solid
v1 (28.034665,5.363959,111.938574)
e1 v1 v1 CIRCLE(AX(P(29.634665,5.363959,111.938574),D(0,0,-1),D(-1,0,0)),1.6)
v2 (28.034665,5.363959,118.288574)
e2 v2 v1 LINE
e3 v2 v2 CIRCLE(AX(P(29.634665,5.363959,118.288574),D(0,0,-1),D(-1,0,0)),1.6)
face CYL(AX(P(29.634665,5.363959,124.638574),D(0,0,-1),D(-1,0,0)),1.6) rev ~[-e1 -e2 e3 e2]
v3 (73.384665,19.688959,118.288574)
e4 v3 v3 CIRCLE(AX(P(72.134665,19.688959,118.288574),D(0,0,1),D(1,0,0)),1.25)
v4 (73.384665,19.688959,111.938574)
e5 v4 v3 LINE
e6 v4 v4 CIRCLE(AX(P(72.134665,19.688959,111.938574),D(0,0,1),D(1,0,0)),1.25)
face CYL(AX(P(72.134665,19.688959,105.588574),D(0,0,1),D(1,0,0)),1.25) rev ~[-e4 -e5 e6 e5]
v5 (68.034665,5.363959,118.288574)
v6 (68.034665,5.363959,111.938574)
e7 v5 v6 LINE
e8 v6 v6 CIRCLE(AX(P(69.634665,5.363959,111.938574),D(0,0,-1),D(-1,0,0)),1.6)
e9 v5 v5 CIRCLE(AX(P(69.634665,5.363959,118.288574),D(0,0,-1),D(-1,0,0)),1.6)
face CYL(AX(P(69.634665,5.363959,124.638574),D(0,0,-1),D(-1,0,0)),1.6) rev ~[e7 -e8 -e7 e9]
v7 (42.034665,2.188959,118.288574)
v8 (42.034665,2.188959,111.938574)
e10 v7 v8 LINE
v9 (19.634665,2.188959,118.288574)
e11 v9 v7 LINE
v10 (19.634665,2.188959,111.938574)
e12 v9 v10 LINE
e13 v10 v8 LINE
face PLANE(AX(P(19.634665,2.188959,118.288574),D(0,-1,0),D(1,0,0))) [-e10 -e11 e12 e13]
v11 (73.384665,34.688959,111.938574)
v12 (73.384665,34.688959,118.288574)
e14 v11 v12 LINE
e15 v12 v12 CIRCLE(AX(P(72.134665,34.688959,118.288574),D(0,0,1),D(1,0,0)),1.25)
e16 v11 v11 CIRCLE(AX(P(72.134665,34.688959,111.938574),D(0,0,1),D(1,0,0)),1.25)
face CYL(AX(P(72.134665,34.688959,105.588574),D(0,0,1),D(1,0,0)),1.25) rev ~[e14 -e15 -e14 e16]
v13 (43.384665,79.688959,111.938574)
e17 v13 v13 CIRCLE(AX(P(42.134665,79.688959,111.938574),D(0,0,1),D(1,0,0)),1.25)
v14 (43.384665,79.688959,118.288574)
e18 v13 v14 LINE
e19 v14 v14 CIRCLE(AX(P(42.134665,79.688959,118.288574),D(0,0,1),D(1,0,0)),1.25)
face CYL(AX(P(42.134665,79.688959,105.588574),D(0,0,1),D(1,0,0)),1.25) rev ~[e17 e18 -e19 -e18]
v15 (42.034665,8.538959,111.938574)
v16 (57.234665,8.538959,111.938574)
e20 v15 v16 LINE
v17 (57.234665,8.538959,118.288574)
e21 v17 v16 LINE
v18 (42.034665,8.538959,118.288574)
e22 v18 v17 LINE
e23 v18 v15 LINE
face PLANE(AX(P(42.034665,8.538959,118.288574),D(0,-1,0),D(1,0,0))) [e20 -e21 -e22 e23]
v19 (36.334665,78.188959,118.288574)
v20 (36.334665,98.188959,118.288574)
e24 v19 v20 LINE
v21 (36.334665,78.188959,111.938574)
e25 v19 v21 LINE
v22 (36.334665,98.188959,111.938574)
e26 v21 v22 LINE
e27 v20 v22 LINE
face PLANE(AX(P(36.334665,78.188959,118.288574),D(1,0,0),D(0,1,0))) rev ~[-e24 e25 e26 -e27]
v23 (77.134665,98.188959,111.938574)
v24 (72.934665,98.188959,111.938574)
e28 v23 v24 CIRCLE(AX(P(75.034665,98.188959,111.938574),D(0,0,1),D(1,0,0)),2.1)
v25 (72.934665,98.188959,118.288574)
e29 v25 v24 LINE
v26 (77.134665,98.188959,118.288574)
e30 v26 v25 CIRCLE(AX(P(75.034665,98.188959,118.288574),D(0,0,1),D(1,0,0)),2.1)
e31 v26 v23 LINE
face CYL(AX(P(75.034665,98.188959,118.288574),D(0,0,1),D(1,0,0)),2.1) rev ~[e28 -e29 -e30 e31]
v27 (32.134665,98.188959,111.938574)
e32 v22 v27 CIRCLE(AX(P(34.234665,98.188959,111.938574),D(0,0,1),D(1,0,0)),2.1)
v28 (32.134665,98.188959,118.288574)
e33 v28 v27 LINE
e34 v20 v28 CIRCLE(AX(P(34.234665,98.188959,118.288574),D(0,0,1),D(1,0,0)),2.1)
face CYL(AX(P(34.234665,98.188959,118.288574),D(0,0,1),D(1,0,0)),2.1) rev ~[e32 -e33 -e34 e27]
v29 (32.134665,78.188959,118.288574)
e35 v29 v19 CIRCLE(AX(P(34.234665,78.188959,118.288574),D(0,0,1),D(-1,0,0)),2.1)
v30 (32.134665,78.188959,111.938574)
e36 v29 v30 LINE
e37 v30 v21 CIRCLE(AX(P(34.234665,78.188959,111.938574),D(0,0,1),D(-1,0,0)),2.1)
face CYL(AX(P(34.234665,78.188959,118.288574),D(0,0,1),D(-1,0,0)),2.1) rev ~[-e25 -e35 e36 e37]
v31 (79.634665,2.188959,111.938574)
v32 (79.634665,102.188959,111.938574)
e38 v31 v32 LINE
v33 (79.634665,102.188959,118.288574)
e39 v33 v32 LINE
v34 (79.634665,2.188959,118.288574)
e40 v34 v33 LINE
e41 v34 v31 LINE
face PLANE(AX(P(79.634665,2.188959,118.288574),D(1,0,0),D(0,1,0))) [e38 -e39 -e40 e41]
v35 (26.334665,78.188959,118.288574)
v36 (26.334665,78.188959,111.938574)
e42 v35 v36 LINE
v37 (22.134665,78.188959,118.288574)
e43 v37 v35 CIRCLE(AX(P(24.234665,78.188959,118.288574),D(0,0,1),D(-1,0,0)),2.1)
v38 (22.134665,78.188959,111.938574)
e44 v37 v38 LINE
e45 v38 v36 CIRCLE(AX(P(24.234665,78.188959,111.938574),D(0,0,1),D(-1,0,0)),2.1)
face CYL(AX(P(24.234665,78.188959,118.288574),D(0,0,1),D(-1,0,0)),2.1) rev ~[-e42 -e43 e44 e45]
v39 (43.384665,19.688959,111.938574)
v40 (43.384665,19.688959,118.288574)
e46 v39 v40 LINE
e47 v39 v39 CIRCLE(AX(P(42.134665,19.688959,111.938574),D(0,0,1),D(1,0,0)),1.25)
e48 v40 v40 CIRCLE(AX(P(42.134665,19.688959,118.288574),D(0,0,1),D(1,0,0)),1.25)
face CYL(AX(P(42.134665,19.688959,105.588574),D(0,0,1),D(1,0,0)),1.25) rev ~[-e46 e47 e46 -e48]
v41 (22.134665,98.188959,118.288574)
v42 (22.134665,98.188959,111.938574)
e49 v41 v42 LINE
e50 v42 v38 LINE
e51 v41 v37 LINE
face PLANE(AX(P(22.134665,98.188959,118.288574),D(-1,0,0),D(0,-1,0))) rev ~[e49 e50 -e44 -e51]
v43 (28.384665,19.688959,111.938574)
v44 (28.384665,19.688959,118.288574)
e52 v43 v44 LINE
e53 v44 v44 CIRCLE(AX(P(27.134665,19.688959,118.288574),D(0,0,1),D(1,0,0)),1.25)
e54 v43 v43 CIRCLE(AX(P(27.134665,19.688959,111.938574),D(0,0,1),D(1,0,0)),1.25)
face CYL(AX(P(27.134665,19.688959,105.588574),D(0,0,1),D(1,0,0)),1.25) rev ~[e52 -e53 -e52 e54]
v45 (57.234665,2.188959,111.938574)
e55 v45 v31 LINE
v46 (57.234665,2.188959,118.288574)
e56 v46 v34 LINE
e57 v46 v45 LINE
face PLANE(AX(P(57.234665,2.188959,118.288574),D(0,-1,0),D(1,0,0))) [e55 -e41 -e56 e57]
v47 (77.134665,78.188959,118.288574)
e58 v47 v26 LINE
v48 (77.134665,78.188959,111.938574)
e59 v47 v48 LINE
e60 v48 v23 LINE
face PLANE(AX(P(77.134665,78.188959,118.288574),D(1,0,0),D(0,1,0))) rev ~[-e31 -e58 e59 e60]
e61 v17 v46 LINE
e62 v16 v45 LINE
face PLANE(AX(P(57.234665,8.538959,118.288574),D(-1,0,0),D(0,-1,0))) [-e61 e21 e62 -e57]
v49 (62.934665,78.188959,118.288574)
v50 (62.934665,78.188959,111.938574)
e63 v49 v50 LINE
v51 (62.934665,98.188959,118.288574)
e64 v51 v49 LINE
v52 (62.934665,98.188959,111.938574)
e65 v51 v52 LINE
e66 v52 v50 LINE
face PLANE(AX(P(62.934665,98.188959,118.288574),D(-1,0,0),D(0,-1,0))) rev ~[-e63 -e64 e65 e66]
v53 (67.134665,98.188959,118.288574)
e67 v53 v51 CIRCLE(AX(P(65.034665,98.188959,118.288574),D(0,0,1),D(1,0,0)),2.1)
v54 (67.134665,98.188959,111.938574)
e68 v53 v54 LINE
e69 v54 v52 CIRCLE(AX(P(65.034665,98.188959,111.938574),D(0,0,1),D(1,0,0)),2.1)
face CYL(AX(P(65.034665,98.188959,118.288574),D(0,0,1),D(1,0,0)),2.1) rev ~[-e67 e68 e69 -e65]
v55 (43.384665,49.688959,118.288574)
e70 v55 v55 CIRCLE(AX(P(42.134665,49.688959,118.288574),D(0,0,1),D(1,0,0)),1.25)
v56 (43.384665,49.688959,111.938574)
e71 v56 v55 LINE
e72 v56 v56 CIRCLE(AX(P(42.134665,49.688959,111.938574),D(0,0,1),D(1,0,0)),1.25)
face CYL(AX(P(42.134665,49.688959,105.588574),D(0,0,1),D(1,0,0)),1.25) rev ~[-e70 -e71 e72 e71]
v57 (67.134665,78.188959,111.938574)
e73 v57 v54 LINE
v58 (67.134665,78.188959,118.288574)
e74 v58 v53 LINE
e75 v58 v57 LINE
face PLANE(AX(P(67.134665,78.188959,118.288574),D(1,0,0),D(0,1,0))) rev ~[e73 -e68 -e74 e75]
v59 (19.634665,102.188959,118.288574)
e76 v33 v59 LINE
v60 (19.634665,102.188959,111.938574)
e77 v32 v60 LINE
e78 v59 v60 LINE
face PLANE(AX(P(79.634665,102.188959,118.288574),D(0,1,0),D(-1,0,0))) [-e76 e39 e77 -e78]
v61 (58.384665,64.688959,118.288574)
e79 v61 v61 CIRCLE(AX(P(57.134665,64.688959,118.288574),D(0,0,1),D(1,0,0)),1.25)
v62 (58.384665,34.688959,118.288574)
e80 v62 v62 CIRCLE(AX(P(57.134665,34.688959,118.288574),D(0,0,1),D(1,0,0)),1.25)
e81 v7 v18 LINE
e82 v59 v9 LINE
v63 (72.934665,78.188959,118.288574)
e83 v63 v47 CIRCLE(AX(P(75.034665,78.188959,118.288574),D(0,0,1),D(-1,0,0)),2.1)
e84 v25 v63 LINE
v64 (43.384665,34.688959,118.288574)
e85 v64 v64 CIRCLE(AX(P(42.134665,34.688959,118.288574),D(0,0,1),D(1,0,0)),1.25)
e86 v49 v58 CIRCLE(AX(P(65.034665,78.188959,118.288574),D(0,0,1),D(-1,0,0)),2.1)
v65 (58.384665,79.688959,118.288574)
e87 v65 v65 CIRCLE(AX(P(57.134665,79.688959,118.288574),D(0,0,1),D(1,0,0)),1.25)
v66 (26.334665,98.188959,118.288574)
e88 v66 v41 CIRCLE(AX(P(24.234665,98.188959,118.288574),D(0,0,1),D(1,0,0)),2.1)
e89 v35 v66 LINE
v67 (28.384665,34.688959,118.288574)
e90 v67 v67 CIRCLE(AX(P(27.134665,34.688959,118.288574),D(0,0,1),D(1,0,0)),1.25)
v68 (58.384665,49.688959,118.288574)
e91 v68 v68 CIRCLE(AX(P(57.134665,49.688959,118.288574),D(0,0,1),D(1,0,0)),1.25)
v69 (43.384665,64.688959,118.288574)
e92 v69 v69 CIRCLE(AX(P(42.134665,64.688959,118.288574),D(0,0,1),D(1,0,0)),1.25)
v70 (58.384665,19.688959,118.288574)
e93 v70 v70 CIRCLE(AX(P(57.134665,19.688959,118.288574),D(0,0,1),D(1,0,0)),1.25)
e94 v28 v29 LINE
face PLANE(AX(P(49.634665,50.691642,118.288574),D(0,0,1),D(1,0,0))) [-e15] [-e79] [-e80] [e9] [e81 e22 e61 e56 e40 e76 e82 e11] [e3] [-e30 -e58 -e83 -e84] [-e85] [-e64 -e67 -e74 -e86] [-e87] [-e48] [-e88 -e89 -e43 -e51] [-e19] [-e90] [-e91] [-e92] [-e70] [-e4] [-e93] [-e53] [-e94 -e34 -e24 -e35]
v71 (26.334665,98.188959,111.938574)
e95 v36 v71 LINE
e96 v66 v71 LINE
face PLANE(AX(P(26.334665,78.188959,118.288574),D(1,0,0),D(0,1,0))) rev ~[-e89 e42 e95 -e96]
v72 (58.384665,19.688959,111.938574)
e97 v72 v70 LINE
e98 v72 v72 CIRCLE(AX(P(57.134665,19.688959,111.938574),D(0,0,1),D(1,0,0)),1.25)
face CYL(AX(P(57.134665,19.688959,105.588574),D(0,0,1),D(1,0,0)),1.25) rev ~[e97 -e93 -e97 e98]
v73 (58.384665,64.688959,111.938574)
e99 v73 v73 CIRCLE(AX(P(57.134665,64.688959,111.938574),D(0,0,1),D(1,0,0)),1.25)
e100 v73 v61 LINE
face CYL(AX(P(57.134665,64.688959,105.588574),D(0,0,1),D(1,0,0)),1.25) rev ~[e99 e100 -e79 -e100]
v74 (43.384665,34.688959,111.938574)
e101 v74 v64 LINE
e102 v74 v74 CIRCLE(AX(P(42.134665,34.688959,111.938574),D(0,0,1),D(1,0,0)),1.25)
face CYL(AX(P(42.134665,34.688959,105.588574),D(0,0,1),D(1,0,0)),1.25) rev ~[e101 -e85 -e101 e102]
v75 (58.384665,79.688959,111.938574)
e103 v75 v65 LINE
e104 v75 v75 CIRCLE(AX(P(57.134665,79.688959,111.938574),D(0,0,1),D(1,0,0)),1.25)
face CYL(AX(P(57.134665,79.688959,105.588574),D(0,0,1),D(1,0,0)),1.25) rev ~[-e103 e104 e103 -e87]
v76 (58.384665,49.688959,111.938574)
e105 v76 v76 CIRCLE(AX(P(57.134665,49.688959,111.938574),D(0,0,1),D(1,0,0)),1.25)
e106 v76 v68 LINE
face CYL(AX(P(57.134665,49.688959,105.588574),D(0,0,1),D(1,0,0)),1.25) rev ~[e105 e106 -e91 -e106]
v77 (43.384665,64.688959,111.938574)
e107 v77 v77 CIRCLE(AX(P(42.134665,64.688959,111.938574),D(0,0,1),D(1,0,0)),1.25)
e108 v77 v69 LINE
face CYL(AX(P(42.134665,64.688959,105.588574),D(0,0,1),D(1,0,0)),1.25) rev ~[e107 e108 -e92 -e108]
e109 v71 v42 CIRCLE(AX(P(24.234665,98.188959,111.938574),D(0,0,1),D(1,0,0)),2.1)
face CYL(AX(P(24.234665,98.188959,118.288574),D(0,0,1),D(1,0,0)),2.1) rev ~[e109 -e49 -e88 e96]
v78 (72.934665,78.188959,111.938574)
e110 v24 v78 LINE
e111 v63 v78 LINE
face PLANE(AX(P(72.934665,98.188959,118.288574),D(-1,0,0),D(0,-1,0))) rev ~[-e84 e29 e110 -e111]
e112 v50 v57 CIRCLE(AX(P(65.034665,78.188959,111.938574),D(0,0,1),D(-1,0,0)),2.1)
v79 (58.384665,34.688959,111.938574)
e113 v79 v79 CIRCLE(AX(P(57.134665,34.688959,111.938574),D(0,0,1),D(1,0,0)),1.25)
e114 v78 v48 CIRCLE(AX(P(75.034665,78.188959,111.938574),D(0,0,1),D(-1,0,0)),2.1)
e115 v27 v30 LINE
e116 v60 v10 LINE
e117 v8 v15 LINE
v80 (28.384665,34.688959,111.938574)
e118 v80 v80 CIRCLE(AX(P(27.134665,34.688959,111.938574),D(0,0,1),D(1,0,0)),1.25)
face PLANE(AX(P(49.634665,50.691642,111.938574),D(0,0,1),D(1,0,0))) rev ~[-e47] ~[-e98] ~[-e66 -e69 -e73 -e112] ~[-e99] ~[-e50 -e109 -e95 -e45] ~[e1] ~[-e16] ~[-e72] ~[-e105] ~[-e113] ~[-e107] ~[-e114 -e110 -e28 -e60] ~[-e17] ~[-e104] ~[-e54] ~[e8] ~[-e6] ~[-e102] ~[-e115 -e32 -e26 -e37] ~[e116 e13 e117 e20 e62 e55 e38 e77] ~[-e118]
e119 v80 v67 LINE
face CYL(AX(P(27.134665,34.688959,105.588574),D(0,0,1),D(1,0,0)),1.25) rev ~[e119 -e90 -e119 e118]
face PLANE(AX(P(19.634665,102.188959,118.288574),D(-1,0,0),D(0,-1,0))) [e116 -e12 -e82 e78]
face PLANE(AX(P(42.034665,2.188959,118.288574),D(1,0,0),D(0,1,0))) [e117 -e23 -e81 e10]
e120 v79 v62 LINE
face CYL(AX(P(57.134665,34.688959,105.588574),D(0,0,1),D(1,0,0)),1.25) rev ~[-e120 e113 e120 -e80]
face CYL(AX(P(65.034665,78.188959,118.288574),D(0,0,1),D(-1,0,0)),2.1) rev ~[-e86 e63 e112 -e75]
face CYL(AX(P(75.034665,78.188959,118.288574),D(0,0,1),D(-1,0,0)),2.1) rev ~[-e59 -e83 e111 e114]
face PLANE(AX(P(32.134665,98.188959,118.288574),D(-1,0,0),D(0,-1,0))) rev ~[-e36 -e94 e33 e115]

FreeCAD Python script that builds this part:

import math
import FreeCAD as App
import Part
import Sketcher
Q = App.Units.Quantity


def add_polygon(sketch, points):
    """Adds a closed chain of lines whose ends are joined by coincident constraints."""
    first, n = sketch.GeometryCount, len(points)
    for a, b in zip(points, points[1:] + points[:1]):
        sketch.addGeometry(Part.LineSegment(App.Vector(*a, 0), App.Vector(*b, 0)), False)
    for i in range(n):
        sketch.addConstraint(Sketcher.Constraint("Coincident", first + i, 2, first + (i + 1) % n, 1))

doc = App.newDocument("Part")
body = doc.addObject("PartDesign::Body", "Body")

sketch1 = doc.addObject("Sketcher::SketchObject", "Sketch")
body.addObject(sketch1)
sketch1.AttachmentSupport = (doc.XY_Plane, [""])
sketch1.MapMode = "FlatFace"
sketch1.AttachmentOffset = App.Placement(App.Vector(0, 0, 118.288574), App.Rotation())
add_polygon(sketch1, [(19.634665, 102.188959), (19.634665, 2.188959), (42.034665, 2.188959), (42.034665, 8.538959), (57.234665, 8.538959), (57.234665, 2.188959), (79.634665, 2.188959), (79.634665, 102.188959)])
sketch1.addConstraint(Sketcher.Constraint("Vertical", 0))
sketch1.addConstraint(Sketcher.Constraint("Horizontal", 1))
sketch1.addConstraint(Sketcher.Constraint("Vertical", 2))
sketch1.addConstraint(Sketcher.Constraint("Horizontal", 3))
sketch1.addConstraint(Sketcher.Constraint("Vertical", 4))
sketch1.addConstraint(Sketcher.Constraint("Horizontal", 5))
sketch1.addConstraint(Sketcher.Constraint("Vertical", 6))
sketch1.addConstraint(Sketcher.Constraint("Horizontal", 7))
sketch1.addConstraint(Sketcher.Constraint("Horizontal", 1, 2, 4, 2))
sketch1.addConstraint(Sketcher.Constraint("Equal", 1, 5))
sketch1.addConstraint(Sketcher.Constraint("DistanceX", 7, 2, 7, 1, Q("60 mm")))
sketch1.addConstraint(Sketcher.Constraint("DistanceY", 0, 2, 0, 1, Q("100 mm")))
sketch1.addConstraint(Sketcher.Constraint("DistanceX", 1, 1, 1, 2, Q("22.4 mm")))
sketch1.addConstraint(Sketcher.Constraint("DistanceY", 2, 1, 2, 2, Q("6.35 mm")))
sketch1.addConstraint(Sketcher.Constraint("DistanceY", -1, 1, 0, 2, Q("2.188959 mm")))
sketch1.addConstraint(Sketcher.Constraint("DistanceX", -1, 1, 0, 2, Q("19.634665 mm")))
pad1 = doc.addObject("PartDesign::Pad", "Pad")
body.addObject(pad1)
pad1.Profile = sketch1
pad1.Length = 6.35
pad1.Reversed = True

sketch2 = doc.addObject("Sketcher::SketchObject", "Sketch001")
body.addObject(sketch2)
sketch2.AttachmentSupport = (doc.XY_Plane, [""])
sketch2.MapMode = "FlatFace"
sketch2.AttachmentOffset = App.Placement(App.Vector(0, 0, 111.938574), App.Rotation())
sketch2.addGeometry(Part.Circle(App.Vector(27.134665, 19.688959, 0), App.Vector(0, 0, 1), 1.25), False)
sketch2.addConstraint(Sketcher.Constraint("Diameter", 0, Q("2.5 mm")))
sketch2.addConstraint(Sketcher.Constraint("DistanceY", -1, 1, 0, 3, Q("19.688959 mm")))
sketch2.addConstraint(Sketcher.Constraint("DistanceX", -1, 1, 0, 3, Q("27.134665 mm")))
doc.recompute()
hole = doc.addObject("PartDesign::Hole", "Hole")
body.addObject(hole)
hole.Profile = sketch2
hole.ThreadType = "None"
hole.Diameter = 2.5
hole.DepthType = "Dimension"
hole.Depth = 6.35
hole.DrillPoint = "Flat"
hole.Reversed = True

sketch3 = doc.addObject("Sketcher::SketchObject", "Sketch002")
body.addObject(sketch3)
sketch3.AttachmentSupport = (doc.XY_Plane, [""])
sketch3.MapMode = "FlatFace"
sketch3.AttachmentOffset = App.Placement(App.Vector(0, 0, 118.288574), App.Rotation())
sketch3.addGeometry(Part.Circle(App.Vector(29.634665, 5.363959, 0), App.Vector(0, 0, 1), 1.6), False)
sketch3.addConstraint(Sketcher.Constraint("Diameter", 0, Q("3.2 mm")))
sketch3.addConstraint(Sketcher.Constraint("DistanceY", -1, 1, 0, 3, Q("5.363959 mm")))
sketch3.addConstraint(Sketcher.Constraint("DistanceX", -1, 1, 0, 3, Q("29.634665 mm")))
doc.recompute()
hole2 = doc.addObject("PartDesign::Hole", "Hole001")
body.addObject(hole2)
hole2.Profile = sketch3
hole2.ThreadType = "None"
hole2.Diameter = 3.2
hole2.DepthType = "Dimension"
hole2.Depth = 6.35
hole2.DrillPoint = "Flat"

sketch4 = doc.addObject("Sketcher::SketchObject", "Sketch003")
body.addObject(sketch4)
sketch4.AttachmentSupport = (doc.XY_Plane, [""])
sketch4.MapMode = "FlatFace"
sketch4.AttachmentOffset = App.Placement(App.Vector(0, 0, 111.938574), App.Rotation())
sketch4.addGeometry(Part.Circle(App.Vector(57.134665, 19.688959, 0), App.Vector(0, 0, 1), 1.25), False)
sketch4.addConstraint(Sketcher.Constraint("Diameter", 0, Q("2.5 mm")))
sketch4.addConstraint(Sketcher.Constraint("DistanceY", -1, 1, 0, 3, Q("19.688959 mm")))
sketch4.addConstraint(Sketcher.Constraint("DistanceX", -1, 1, 0, 3, Q("57.134665 mm")))
doc.recompute()
hole3 = doc.addObject("PartDesign::Hole", "Hole002")
body.addObject(hole3)
hole3.Profile = sketch4
hole3.ThreadType = "None"
hole3.Diameter = 2.5
hole3.DepthType = "Dimension"
hole3.Depth = 6.35
hole3.DrillPoint = "Flat"
hole3.Reversed = True

sketch5 = doc.addObject("Sketcher::SketchObject", "Sketch004")
body.addObject(sketch5)
sketch5.AttachmentSupport = (doc.XY_Plane, [""])
sketch5.MapMode = "FlatFace"
sketch5.AttachmentOffset = App.Placement(App.Vector(0, 0, 111.938574), App.Rotation())
sketch5.addGeometry(Part.Circle(App.Vector(42.134665, 34.688959, 0), App.Vector(0, 0, 1), 1.25), False)
sketch5.addConstraint(Sketcher.Constraint("Diameter", 0, Q("2.5 mm")))
sketch5.addConstraint(Sketcher.Constraint("DistanceY", -1, 1, 0, 3, Q("34.688959 mm")))
sketch5.addConstraint(Sketcher.Constraint("DistanceX", -1, 1, 0, 3, Q("42.134665 mm")))
doc.recompute()
hole4 = doc.addObject("PartDesign::Hole", "Hole003")
body.addObject(hole4)
hole4.Profile = sketch5
hole4.ThreadType = "None"
hole4.Diameter = 2.5
hole4.DepthType = "Dimension"
hole4.Depth = 6.35
hole4.DrillPoint = "Flat"
hole4.Reversed = True

sketch6 = doc.addObject("Sketcher::SketchObject", "Sketch005")
body.addObject(sketch6)
sketch6.AttachmentSupport = (doc.XY_Plane, [""])
sketch6.MapMode = "FlatFace"
sketch6.AttachmentOffset = App.Placement(App.Vector(0, 0, 111.938574), App.Rotation())
sketch6.addGeometry(Part.Circle(App.Vector(42.134665, 64.688959, 0), App.Vector(0, 0, 1), 1.25), False)
sketch6.addConstraint(Sketcher.Constraint("Diameter", 0, Q("2.5 mm")))
sketch6.addConstraint(Sketcher.Constraint("DistanceY", -1, 1, 0, 3, Q("64.688959 mm")))
sketch6.addConstraint(Sketcher.Constraint("DistanceX", -1, 1, 0, 3, Q("42.134665 mm")))
doc.recompute()
hole5 = doc.addObject("PartDesign::Hole", "Hole004")
body.addObject(hole5)
hole5.Profile = sketch6
hole5.ThreadType = "None"
hole5.Diameter = 2.5
hole5.DepthType = "Dimension"
hole5.Depth = 6.35
hole5.DrillPoint = "Flat"
hole5.Reversed = True

sketch7 = doc.addObject("Sketcher::SketchObject", "Sketch006")
body.addObject(sketch7)
sketch7.AttachmentSupport = (doc.XY_Plane, [""])
sketch7.MapMode = "FlatFace"
sketch7.AttachmentOffset = App.Placement(App.Vector(0, 0, 111.938574), App.Rotation())
sketch7.addGeometry(Part.Circle(App.Vector(57.134665, 64.688959, 0), App.Vector(0, 0, 1), 1.25), False)
sketch7.addConstraint(Sketcher.Constraint("Diameter", 0, Q("2.5 mm")))
sketch7.addConstraint(Sketcher.Constraint("DistanceY", -1, 1, 0, 3, Q("64.688959 mm")))
sketch7.addConstraint(Sketcher.Constraint("DistanceX", -1, 1, 0, 3, Q("57.134665 mm")))
doc.recompute()
hole6 = doc.addObject("PartDesign::Hole", "Hole005")
body.addObject(hole6)
hole6.Profile = sketch7
hole6.ThreadType = "None"
hole6.Diameter = 2.5
hole6.DepthType = "Dimension"
hole6.Depth = 6.35
hole6.DrillPoint = "Flat"
hole6.Reversed = True

sketch8 = doc.addObject("Sketcher::SketchObject", "Sketch007")
body.addObject(sketch8)
sketch8.AttachmentSupport = (doc.XY_Plane, [""])
sketch8.MapMode = "FlatFace"
sketch8.AttachmentOffset = App.Placement(App.Vector(0, 0, 111.938574), App.Rotation())
sketch8.addGeometry(Part.Circle(App.Vector(27.134665, 34.688959, 0), App.Vector(0, 0, 1), 1.25), False)
sketch8.addConstraint(Sketcher.Constraint("Diameter", 0, Q("2.5 mm")))
sketch8.addConstraint(Sketcher.Constraint("DistanceY", -1, 1, 0, 3, Q("34.688959 mm")))
sketch8.addConstraint(Sketcher.Constraint("DistanceX", -1, 1, 0, 3, Q("27.134665 mm")))
doc.recompute()
hole7 = doc.addObject("PartDesign::Hole", "Hole006")
body.addObject(hole7)
hole7.Profile = sketch8
hole7.ThreadType = "None"
hole7.Diameter = 2.5
hole7.DepthType = "Dimension"
hole7.Depth = 6.35
hole7.DrillPoint = "Flat"
hole7.Reversed = True

sketch9 = doc.addObject("Sketcher::SketchObject", "Sketch008")
body.addObject(sketch9)
sketch9.AttachmentSupport = (doc.XY_Plane, [""])
sketch9.MapMode = "FlatFace"
sketch9.AttachmentOffset = App.Placement(App.Vector(0, 0, 111.938574), App.Rotation())
sketch9.addGeometry(Part.Circle(App.Vector(72.134665, 19.688959, 0), App.Vector(0, 0, 1), 1.25), False)
sketch9.addConstraint(Sketcher.Constraint("Diameter", 0, Q("2.5 mm")))
sketch9.addConstraint(Sketcher.Constraint("DistanceY", -1, 1, 0, 3, Q("19.688959 mm")))
sketch9.addConstraint(Sketcher.Constraint("DistanceX", -1, 1, 0, 3, Q("72.134665 mm")))
doc.recompute()
hole8 = doc.addObject("PartDesign::Hole", "Hole007")
body.addObject(hole8)
hole8.Profile = sketch9
hole8.ThreadType = "None"
hole8.Diameter = 2.5
hole8.DepthType = "Dimension"
hole8.Depth = 6.35
hole8.DrillPoint = "Flat"
hole8.Reversed = True

sketch10 = doc.addObject("Sketcher::SketchObject", "Sketch009")
body.addObject(sketch10)
sketch10.AttachmentSupport = (doc.XY_Plane, [""])
sketch10.MapMode = "FlatFace"
sketch10.AttachmentOffset = App.Placement(App.Vector(0, 0, 111.938574), App.Rotation())
sketch10.addGeometry(Part.Circle(App.Vector(42.134665, 19.688959, 0), App.Vector(0, 0, 1), 1.25), False)
sketch10.addConstraint(Sketcher.Constraint("Diameter", 0, Q("2.5 mm")))
sketch10.addConstraint(Sketcher.Constraint("DistanceY", -1, 1, 0, 3, Q("19.688959 mm")))
sketch10.addConstraint(Sketcher.Constraint("DistanceX", -1, 1, 0, 3, Q("42.134665 mm")))
doc.recompute()
hole9 = doc.addObject("PartDesign::Hole", "Hole008")
body.addObject(hole9)
hole9.Profile = sketch10
hole9.ThreadType = "None"
hole9.Diameter = 2.5
hole9.DepthType = "Dimension"
hole9.Depth = 6.35
hole9.DrillPoint = "Flat"
hole9.Reversed = True

sketch11 = doc.addObject("Sketcher::SketchObject", "Sketch010")
body.addObject(sketch11)
sketch11.AttachmentSupport = (doc.XY_Plane, [""])
sketch11.MapMode = "FlatFace"
sketch11.AttachmentOffset = App.Placement(App.Vector(0, 0, 111.938574), App.Rotation())
sketch11.addGeometry(Part.Circle(App.Vector(57.134665, 34.688959, 0), App.Vector(0, 0, 1), 1.25), False)
sketch11.addConstraint(Sketcher.Constraint("Diameter", 0, Q("2.5 mm")))
sketch11.addConstraint(Sketcher.Constraint("DistanceY", -1, 1, 0, 3, Q("34.688959 mm")))
sketch11.addConstraint(Sketcher.Constraint("DistanceX", -1, 1, 0, 3, Q("57.134665 mm")))
doc.recompute()
hole10 = doc.addObject("PartDesign::Hole", "Hole009")
body.addObject(hole10)
hole10.Profile = sketch11
hole10.ThreadType = "None"
hole10.Diameter = 2.5
hole10.DepthType = "Dimension"
hole10.Depth = 6.35
hole10.DrillPoint = "Flat"
hole10.Reversed = True

sketch12 = doc.addObject("Sketcher::SketchObject", "Sketch011")
body.addObject(sketch12)
sketch12.AttachmentSupport = (doc.XY_Plane, [""])
sketch12.MapMode = "FlatFace"
sketch12.AttachmentOffset = App.Placement(App.Vector(0, 0, 111.938574), App.Rotation())
sketch12.addGeometry(Part.Circle(App.Vector(42.134665, 49.688959, 0), App.Vector(0, 0, 1), 1.25), False)
sketch12.addConstraint(Sketcher.Constraint("Diameter", 0, Q("2.5 mm")))
sketch12.addConstraint(Sketcher.Constraint("DistanceY", -1, 1, 0, 3, Q("49.688959 mm")))
sketch12.addConstraint(Sketcher.Constraint("DistanceX", -1, 1, 0, 3, Q("42.134665 mm")))
doc.recompute()
hole11 = doc.addObject("PartDesign::Hole", "Hole010")
body.addObject(hole11)
hole11.Profile = sketch12
hole11.ThreadType = "None"
hole11.Diameter = 2.5
hole11.DepthType = "Dimension"
hole11.Depth = 6.35
hole11.DrillPoint = "Flat"
hole11.Reversed = True

sketch13 = doc.addObject("Sketcher::SketchObject", "Sketch012")
body.addObject(sketch13)
sketch13.AttachmentSupport = (doc.XY_Plane, [""])
sketch13.MapMode = "FlatFace"
sketch13.AttachmentOffset = App.Placement(App.Vector(0, 0, 111.938574), App.Rotation())
sketch13.addGeometry(Part.Circle(App.Vector(42.134665, 79.688959, 0), App.Vector(0, 0, 1), 1.25), False)
sketch13.addConstraint(Sketcher.Constraint("Diameter", 0, Q("2.5 mm")))
sketch13.addConstraint(Sketcher.Constraint("DistanceY", -1, 1, 0, 3, Q("79.688959 mm")))
sketch13.addConstraint(Sketcher.Constraint("DistanceX", -1, 1, 0, 3, Q("42.134665 mm")))
doc.recompute()
hole12 = doc.addObject("PartDesign::Hole", "Hole011")
body.addObject(hole12)
hole12.Profile = sketch13
hole12.ThreadType = "None"
hole12.Diameter = 2.5
hole12.DepthType = "Dimension"
hole12.Depth = 6.35
hole12.DrillPoint = "Flat"
hole12.Reversed = True

sketch14 = doc.addObject("Sketcher::SketchObject", "Sketch013")
body.addObject(sketch14)
sketch14.AttachmentSupport = (doc.XY_Plane, [""])
sketch14.MapMode = "FlatFace"
sketch14.AttachmentOffset = App.Placement(App.Vector(0, 0, 111.938574), App.Rotation())
sketch14.addGeometry(Part.Circle(App.Vector(57.134665, 79.688959, 0), App.Vector(0, 0, 1), 1.25), False)
sketch14.addConstraint(Sketcher.Constraint("Diameter", 0, Q("2.5 mm")))
sketch14.addConstraint(Sketcher.Constraint("DistanceY", -1, 1, 0, 3, Q("79.688959 mm")))
sketch14.addConstraint(Sketcher.Constraint("DistanceX", -1, 1, 0, 3, Q("57.134665 mm")))
doc.recompute()
hole13 = doc.addObject("PartDesign::Hole", "Hole012")
body.addObject(hole13)
hole13.Profile = sketch14
hole13.ThreadType = "None"
hole13.Diameter = 2.5
hole13.DepthType = "Dimension"
hole13.Depth = 6.35
hole13.DrillPoint = "Flat"
hole13.Reversed = True

sketch15 = doc.addObject("Sketcher::SketchObject", "Sketch014")
body.addObject(sketch15)
sketch15.AttachmentSupport = (doc.XY_Plane, [""])
sketch15.MapMode = "FlatFace"
sketch15.AttachmentOffset = App.Placement(App.Vector(0, 0, 111.938574), App.Rotation())
sketch15.addGeometry(Part.Circle(App.Vector(57.134665, 49.688959, 0), App.Vector(0, 0, 1), 1.25), False)
sketch15.addConstraint(Sketcher.Constraint("Diameter", 0, Q("2.5 mm")))
sketch15.addConstraint(Sketcher.Constraint("DistanceY", -1, 1, 0, 3, Q("49.688959 mm")))
sketch15.addConstraint(Sketcher.Constraint("DistanceX", -1, 1, 0, 3, Q("57.134665 mm")))
doc.recompute()
hole14 = doc.addObject("PartDesign::Hole", "Hole013")
body.addObject(hole14)
hole14.Profile = sketch15
hole14.ThreadType = "None"
hole14.Diameter = 2.5
hole14.DepthType = "Dimension"
hole14.Depth = 6.35
hole14.DrillPoint = "Flat"
hole14.Reversed = True

sketch16 = doc.addObject("Sketcher::SketchObject", "Sketch015")
body.addObject(sketch16)
sketch16.AttachmentSupport = (doc.XY_Plane, [""])
sketch16.MapMode = "FlatFace"
sketch16.AttachmentOffset = App.Placement(App.Vector(0, 0, 111.938574), App.Rotation())
sketch16.addGeometry(Part.Circle(App.Vector(72.134665, 34.688959, 0), App.Vector(0, 0, 1), 1.25), False)
sketch16.addConstraint(Sketcher.Constraint("Diameter", 0, Q("2.5 mm")))
sketch16.addConstraint(Sketcher.Constraint("DistanceY", -1, 1, 0, 3, Q("34.688959 mm")))
sketch16.addConstraint(Sketcher.Constraint("DistanceX", -1, 1, 0, 3, Q("72.134665 mm")))
doc.recompute()
hole15 = doc.addObject("PartDesign::Hole", "Hole014")
body.addObject(hole15)
hole15.Profile = sketch16
hole15.ThreadType = "None"
hole15.Diameter = 2.5
hole15.DepthType = "Dimension"
hole15.Depth = 6.35
hole15.DrillPoint = "Flat"
hole15.Reversed = True

sketch17 = doc.addObject("Sketcher::SketchObject", "Sketch016")
body.addObject(sketch17)
sketch17.AttachmentSupport = (doc.XY_Plane, [""])
sketch17.MapMode = "FlatFace"
sketch17.AttachmentOffset = App.Placement(App.Vector(0, 0, 118.288574), App.Rotation())
sketch17.addGeometry(Part.Circle(App.Vector(69.634665, 5.363959, 0), App.Vector(0, 0, 1), 1.6), False)
sketch17.addConstraint(Sketcher.Constraint("Diameter", 0, Q("3.2 mm")))
sketch17.addConstraint(Sketcher.Constraint("DistanceY", -1, 1, 0, 3, Q("5.363959 mm")))
sketch17.addConstraint(Sketcher.Constraint("DistanceX", -1, 1, 0, 3, Q("69.634665 mm")))
doc.recompute()
hole16 = doc.addObject("PartDesign::Hole", "Hole015")
body.addObject(hole16)
hole16.Profile = sketch17
hole16.ThreadType = "None"
hole16.Diameter = 3.2
hole16.DepthType = "Dimension"
hole16.Depth = 6.35
hole16.DrillPoint = "Flat"

sketch18 = doc.addObject("Sketcher::SketchObject", "Sketch017")
body.addObject(sketch18)
sketch18.AttachmentSupport = (doc.XY_Plane, [""])
sketch18.MapMode = "FlatFace"
sketch18.AttachmentOffset = App.Placement(App.Vector(0, 0, 118.288574), App.Rotation())
sketch18.addGeometry(Part.LineSegment(App.Vector(22.134665, 98.188959, 0), App.Vector(22.134665, 78.188959, 0)), False)
sketch18.addGeometry(Part.ArcOfCircle(Part.Circle(App.Vector(24.234665, 78.188959, 0), App.Vector(0, 0, 1), 2.1), math.radians(180), math.radians(360)), False)
sketch18.addGeometry(Part.LineSegment(App.Vector(26.334665, 78.188959, 0), App.Vector(26.334665, 98.188959, 0)), False)
sketch18.addGeometry(Part.ArcOfCircle(Part.Circle(App.Vector(24.234665, 98.188959, 0), App.Vector(0, 0, 1), 2.1), math.radians(0), math.radians(180)), False)
sketch18.addGeometry(Part.LineSegment(App.Vector(32.134665, 98.188959, 0), App.Vector(32.134665, 78.188959, 0)), False)
sketch18.addGeometry(Part.ArcOfCircle(Part.Circle(App.Vector(34.234665, 78.188959, 0), App.Vector(0, 0, 1), 2.1), math.radians(180), math.radians(360)), False)
sketch18.addGeometry(Part.LineSegment(App.Vector(36.334665, 78.188959, 0), App.Vector(36.334665, 98.188959, 0)), False)
sketch18.addGeometry(Part.ArcOfCircle(Part.Circle(App.Vector(34.234665, 98.188959, 0), App.Vector(0, 0, 1), 2.1), math.radians(0), math.radians(180)), False)
sketch18.addGeometry(Part.LineSegment(App.Vector(62.934665, 98.188959, 0), App.Vector(62.934665, 78.188959, 0)), False)
sketch18.addGeometry(Part.ArcOfCircle(Part.Circle(App.Vector(65.034665, 78.188959, 0), App.Vector(0, 0, 1), 2.1), math.radians(180), math.radians(360)), False)
sketch18.addGeometry(Part.LineSegment(App.Vector(67.134665, 78.188959, 0), App.Vector(67.134665, 98.188959, 0)), False)
sketch18.addGeometry(Part.ArcOfCircle(Part.Circle(App.Vector(65.034665, 98.188959, 0), App.Vector(0, 0, 1), 2.1), math.radians(0), math.radians(180)), False)
sketch18.addGeometry(Part.LineSegment(App.Vector(72.934665, 98.188959, 0), App.Vector(72.934665, 78.188959, 0)), False)
sketch18.addGeometry(Part.ArcOfCircle(Part.Circle(App.Vector(75.034665, 78.188959, 0), App.Vector(0, 0, 1), 2.1), math.radians(180), math.radians(360)), False)
sketch18.addGeometry(Part.LineSegment(App.Vector(77.134665, 78.188959, 0), App.Vector(77.134665, 98.188959, 0)), False)
sketch18.addGeometry(Part.ArcOfCircle(Part.Circle(App.Vector(75.034665, 98.188959, 0), App.Vector(0, 0, 1), 2.1), math.radians(0), math.radians(180)), False)
sketch18.addConstraint(Sketcher.Constraint("Tangent", 0, 2, 1, 1))
sketch18.addConstraint(Sketcher.Constraint("Tangent", 1, 2, 2, 1))
sketch18.addConstraint(Sketcher.Constraint("Tangent", 2, 2, 3, 1))
sketch18.addConstraint(Sketcher.Constraint("Tangent", 3, 2, 0, 1))
sketch18.addConstraint(Sketcher.Constraint("Tangent", 4, 2, 5, 1))
sketch18.addConstraint(Sketcher.Constraint("Tangent", 5, 2, 6, 1))
sketch18.addConstraint(Sketcher.Constraint("Tangent", 6, 2, 7, 1))
sketch18.addConstraint(Sketcher.Constraint("Tangent", 7, 2, 4, 1))
sketch18.addConstraint(Sketcher.Constraint("Tangent", 8, 2, 9, 1))
sketch18.addConstraint(Sketcher.Constraint("Tangent", 9, 2, 10, 1))
sketch18.addConstraint(Sketcher.Constraint("Tangent", 10, 2, 11, 1))
sketch18.addConstraint(Sketcher.Constraint("Tangent", 11, 2, 8, 1))
sketch18.addConstraint(Sketcher.Constraint("Tangent", 12, 2, 13, 1))
sketch18.addConstraint(Sketcher.Constraint("Tangent", 13, 2, 14, 1))
sketch18.addConstraint(Sketcher.Constraint("Tangent", 14, 2, 15, 1))
sketch18.addConstraint(Sketcher.Constraint("Tangent", 15, 2, 12, 1))
sketch18.addConstraint(Sketcher.Constraint("Vertical", 0))
sketch18.addConstraint(Sketcher.Constraint("Vertical", 2))
sketch18.addConstraint(Sketcher.Constraint("Vertical", 4))
sketch18.addConstraint(Sketcher.Constraint("Vertical", 6))
sketch18.addConstraint(Sketcher.Constraint("Vertical", 8))
sketch18.addConstraint(Sketcher.Constraint("Vertical", 10))
sketch18.addConstraint(Sketcher.Constraint("Vertical", 12))
sketch18.addConstraint(Sketcher.Constraint("Vertical", 14))
sketch18.addConstraint(Sketcher.Constraint("Equal", 3, 5))
sketch18.addConstraint(Sketcher.Constraint("Equal", 7, 9))
sketch18.addConstraint(Sketcher.Constraint("Equal", 11, 13))
sketch18.addConstraint(Sketcher.Constraint("Horizontal", 1, 3, 5, 3))
sketch18.addConstraint(Sketcher.Constraint("Horizontal", 3, 3, 7, 3))
sketch18.addConstraint(Sketcher.Constraint("Horizontal", 5, 3, 9, 3))
sketch18.addConstraint(Sketcher.Constraint("Horizontal", 7, 3, 11, 3))
sketch18.addConstraint(Sketcher.Constraint("Horizontal", 9, 3, 13, 3))
sketch18.addConstraint(Sketcher.Constraint("Horizontal", 11, 3, 15, 3))
sketch18.addConstraint(Sketcher.Constraint("Radius", 1, Q("2.1 mm")))
sketch18.addConstraint(Sketcher.Constraint("DistanceY", 0, 2, 0, 1, Q("20 mm")))
sketch18.addConstraint(Sketcher.Constraint("DistanceX", 1, 3, 5, 3, Q("10 mm")))
sketch18.addConstraint(Sketcher.Constraint("DistanceX", 9, 3, 13, 3, Q("10 mm")))
sketch18.addConstraint(Sketcher.Constraint("DistanceX", 5, 3, 9, 3, Q("30.8 mm")))
sketch18.addConstraint(Sketcher.Constraint("DistanceY", -1, 1, 1, 3, Q("78.188959 mm")))
sketch18.addConstraint(Sketcher.Constraint("DistanceX", -1, 1, 1, 3, Q("24.234665 mm")))
pocket1 = doc.addObject("PartDesign::Pocket", "Pocket")
body.addObject(pocket1)
pocket1.Profile = sketch18
pocket1.Type = "ThroughAll"

doc.recompute()
